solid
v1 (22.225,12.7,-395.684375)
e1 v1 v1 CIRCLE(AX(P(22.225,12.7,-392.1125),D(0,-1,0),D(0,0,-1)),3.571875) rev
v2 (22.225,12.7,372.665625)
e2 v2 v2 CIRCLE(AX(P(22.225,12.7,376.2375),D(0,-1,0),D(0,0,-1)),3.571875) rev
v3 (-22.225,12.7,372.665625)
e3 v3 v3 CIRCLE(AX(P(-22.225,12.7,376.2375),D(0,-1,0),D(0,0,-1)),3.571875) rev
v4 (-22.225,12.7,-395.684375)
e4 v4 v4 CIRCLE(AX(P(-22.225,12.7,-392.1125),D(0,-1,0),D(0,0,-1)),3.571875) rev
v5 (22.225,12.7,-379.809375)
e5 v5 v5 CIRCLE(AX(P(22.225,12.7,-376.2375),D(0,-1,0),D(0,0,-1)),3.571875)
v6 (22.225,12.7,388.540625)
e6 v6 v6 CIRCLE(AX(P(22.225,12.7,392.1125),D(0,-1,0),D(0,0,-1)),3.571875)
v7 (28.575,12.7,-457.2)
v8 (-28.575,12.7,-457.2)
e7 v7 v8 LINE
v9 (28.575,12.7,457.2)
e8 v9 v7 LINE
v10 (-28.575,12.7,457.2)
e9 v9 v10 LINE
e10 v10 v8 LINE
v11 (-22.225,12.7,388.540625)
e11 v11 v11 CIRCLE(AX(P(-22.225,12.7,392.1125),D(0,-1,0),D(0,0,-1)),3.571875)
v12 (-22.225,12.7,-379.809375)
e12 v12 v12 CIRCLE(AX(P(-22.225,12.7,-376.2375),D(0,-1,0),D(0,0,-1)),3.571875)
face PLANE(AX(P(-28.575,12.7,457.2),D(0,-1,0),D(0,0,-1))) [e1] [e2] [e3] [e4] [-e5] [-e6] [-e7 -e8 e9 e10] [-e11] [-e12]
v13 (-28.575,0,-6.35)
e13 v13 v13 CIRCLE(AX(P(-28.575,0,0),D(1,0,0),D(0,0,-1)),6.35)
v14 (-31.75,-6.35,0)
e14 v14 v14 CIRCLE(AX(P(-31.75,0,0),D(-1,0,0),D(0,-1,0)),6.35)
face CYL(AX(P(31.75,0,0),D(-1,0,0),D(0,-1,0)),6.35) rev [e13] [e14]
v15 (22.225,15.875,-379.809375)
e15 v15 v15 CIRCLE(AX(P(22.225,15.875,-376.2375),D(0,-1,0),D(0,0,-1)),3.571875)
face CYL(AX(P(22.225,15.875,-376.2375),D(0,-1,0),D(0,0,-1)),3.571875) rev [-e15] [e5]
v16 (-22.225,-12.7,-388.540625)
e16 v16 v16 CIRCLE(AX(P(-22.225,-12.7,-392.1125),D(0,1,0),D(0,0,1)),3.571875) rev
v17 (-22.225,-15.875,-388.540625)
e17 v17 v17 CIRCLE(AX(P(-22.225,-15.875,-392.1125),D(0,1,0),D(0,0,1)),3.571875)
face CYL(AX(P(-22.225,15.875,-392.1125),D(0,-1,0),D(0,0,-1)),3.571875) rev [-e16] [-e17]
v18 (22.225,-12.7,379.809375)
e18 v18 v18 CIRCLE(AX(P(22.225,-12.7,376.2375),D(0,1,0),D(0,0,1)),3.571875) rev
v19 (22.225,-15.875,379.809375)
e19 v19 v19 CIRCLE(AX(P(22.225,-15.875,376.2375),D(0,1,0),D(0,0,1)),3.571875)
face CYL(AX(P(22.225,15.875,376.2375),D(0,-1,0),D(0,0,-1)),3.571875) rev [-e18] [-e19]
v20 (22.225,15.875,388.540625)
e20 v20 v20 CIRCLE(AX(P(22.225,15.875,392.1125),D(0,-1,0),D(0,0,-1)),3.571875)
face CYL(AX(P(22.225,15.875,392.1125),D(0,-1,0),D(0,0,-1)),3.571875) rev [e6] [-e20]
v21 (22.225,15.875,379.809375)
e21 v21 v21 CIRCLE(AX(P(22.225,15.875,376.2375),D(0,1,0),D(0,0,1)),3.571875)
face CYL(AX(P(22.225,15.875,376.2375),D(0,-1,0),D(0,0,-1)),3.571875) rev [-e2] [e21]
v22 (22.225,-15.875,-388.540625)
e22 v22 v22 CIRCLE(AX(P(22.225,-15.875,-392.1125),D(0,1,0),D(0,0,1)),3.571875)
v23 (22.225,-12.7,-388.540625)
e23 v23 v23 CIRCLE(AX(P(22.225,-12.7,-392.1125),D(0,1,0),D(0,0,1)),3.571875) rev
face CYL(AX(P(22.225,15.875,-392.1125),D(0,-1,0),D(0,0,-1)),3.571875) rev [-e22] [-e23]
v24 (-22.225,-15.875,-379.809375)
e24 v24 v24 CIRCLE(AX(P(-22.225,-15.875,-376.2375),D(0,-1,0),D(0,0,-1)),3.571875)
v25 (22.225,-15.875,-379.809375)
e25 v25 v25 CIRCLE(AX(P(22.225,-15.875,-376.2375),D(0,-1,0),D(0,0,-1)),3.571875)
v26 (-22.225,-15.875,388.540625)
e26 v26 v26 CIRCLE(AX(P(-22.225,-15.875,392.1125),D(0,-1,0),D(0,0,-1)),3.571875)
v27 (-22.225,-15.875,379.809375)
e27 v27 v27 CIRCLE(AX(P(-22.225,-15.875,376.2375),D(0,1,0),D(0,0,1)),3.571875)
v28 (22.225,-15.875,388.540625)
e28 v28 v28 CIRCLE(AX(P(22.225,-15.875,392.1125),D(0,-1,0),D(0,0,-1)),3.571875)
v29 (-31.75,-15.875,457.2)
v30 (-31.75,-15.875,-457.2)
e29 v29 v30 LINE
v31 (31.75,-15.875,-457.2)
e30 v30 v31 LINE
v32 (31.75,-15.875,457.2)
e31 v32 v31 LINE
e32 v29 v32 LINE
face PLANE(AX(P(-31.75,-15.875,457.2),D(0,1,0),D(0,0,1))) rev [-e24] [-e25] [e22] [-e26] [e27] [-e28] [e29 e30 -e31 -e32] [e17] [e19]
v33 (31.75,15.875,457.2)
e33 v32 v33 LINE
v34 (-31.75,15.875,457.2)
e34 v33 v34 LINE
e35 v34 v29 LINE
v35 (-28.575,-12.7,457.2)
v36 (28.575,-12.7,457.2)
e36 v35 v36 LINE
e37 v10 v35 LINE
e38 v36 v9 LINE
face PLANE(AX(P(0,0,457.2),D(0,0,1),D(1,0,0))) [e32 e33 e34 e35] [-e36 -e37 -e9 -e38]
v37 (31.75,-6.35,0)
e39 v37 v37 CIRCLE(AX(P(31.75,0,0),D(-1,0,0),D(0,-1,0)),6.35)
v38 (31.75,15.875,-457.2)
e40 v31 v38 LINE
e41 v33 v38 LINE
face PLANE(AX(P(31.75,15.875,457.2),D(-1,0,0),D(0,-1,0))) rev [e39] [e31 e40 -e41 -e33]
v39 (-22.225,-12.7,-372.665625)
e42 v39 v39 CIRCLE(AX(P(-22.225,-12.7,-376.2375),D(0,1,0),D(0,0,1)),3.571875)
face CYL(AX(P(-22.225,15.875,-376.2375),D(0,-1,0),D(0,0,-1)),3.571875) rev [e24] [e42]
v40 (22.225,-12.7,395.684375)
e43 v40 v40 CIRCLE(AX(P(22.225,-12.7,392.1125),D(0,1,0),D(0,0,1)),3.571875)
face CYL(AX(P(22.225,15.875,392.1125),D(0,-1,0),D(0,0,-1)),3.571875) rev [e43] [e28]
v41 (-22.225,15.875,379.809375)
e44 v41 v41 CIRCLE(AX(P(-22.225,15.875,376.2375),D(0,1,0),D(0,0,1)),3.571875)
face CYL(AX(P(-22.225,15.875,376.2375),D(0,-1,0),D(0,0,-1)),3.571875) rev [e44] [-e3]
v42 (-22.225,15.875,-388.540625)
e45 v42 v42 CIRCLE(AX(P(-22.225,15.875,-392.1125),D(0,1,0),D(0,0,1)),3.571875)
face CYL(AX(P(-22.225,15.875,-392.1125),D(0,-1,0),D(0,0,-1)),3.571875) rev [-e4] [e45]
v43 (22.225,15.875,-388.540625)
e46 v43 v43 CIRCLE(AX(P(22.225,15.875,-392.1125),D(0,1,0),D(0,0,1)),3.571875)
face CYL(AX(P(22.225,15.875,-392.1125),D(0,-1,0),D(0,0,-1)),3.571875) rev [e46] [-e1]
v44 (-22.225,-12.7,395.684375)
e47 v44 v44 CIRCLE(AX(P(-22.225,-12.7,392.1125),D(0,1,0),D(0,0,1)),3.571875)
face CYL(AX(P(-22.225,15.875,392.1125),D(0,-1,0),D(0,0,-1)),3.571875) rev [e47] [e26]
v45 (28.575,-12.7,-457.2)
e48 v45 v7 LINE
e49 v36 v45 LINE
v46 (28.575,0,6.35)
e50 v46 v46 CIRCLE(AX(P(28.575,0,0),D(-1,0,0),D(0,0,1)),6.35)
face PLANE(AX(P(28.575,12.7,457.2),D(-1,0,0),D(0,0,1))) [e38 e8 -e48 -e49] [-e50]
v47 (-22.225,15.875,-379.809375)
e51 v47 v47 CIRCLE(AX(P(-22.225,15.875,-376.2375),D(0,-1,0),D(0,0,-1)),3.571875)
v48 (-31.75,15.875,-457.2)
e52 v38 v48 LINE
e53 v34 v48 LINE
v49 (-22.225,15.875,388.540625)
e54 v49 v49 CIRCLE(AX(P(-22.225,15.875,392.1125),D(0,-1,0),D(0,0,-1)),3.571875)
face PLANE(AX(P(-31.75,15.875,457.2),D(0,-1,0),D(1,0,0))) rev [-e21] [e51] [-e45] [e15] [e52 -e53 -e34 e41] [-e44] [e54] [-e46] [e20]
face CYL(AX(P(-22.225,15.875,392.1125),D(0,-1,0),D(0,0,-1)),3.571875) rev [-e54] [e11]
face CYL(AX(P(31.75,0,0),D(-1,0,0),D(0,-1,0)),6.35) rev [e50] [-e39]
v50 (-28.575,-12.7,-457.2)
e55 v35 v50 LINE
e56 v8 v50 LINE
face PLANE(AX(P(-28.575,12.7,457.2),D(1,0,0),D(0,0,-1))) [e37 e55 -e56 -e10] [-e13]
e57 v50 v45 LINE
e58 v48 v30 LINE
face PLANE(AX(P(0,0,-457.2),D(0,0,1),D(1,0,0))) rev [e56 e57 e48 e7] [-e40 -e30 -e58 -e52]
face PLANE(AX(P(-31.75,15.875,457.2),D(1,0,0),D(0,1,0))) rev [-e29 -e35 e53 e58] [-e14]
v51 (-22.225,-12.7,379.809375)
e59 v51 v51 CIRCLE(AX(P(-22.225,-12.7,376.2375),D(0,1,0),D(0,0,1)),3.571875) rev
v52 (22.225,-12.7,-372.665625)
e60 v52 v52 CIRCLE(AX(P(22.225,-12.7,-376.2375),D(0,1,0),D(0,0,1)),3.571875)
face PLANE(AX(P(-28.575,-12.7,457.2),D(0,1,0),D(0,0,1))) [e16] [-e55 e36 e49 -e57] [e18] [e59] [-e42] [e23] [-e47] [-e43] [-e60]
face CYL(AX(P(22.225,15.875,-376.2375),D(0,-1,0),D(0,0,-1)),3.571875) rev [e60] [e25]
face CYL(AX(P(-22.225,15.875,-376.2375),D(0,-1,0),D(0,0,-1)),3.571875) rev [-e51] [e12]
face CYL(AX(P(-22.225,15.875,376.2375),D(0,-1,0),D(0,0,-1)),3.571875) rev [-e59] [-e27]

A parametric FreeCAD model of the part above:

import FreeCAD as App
import Part
import Sketcher
from FreeCAD import Vector
Q = App.Units.Quantity


def add_polygon(sketch, points):
    """Adds a closed chain of lines whose ends are joined by coincident constraints."""
    first, n = sketch.GeometryCount, len(points)
    for a, b in zip(points, points[1:] + points[:1]):
        sketch.addGeometry(Part.LineSegment(App.Vector(*a, 0), App.Vector(*b, 0)), False)
    for i in range(n):
        sketch.addConstraint(Sketcher.Constraint("Coincident", first + i, 2, first + (i + 1) % n, 1))

doc = App.newDocument("Part")
body = doc.addObject("PartDesign::Body", "Body")

# Sketch on XY plane
sketch1 = body.newObject("Sketcher::SketchObject", "Sketch")
sketch1.AttachmentSupport = (doc.getObject("XY_Plane"), [""])
sketch1.MapMode = "FlatFace"
add_polygon(sketch1, [(-32, 16), (-32, -16), (32, -16), (32, 16)])  # lines 0-3
add_polygon(sketch1, [(29, -13), (-29, -13), (-29, 13), (29, 13)])  # lines 4-7
sketch1.addConstraint([
    Sketcher.Constraint("Vertical", 0),
    Sketcher.Constraint("Horizontal", 1),
    Sketcher.Constraint("Vertical", 2),
    Sketcher.Constraint("Horizontal", 3),
    Sketcher.Constraint("Horizontal", 4),
    Sketcher.Constraint("Vertical", 5),
    Sketcher.Constraint("Horizontal", 6),
    Sketcher.Constraint("Vertical", 7),
    Sketcher.Constraint("Symmetric", 0, 2, 2, 2, -1, 1),
    Sketcher.Constraint("Symmetric", 4, 2, 6, 2, -1, 1),
    Sketcher.Constraint("DistanceY", 5, 1, 5, 2, Q("1 in")),
    Sketcher.Constraint("DistanceX", 1, 1, 1, 2, Q("2.5 in")),
    Sketcher.Constraint("DistanceX", 4, 2, 4, 1, Q("2.25 in")),
    Sketcher.Constraint("DistanceY", 0, 2, 0, 1, Q("1.25 in")),
])
pad1 = body.newObject("PartDesign::Pad", "Pad")
pad1.Profile = sketch1
pad1.Type = "TwoLengths"
pad1.Length = Q("18 in")
pad1.Length2 = Q("18 in")

# Sketch on XZ plane
sketch2 = body.newObject("Sketcher::SketchObject", "Sketch001")
sketch2.AttachmentSupport = (doc.getObject("XZ_Plane"), [""])
sketch2.MapMode = "FlatFace"
sketch2.AttachmentOffset = App.Placement(Vector(0, 0, 0.625 * 25.4), App.Rotation())
sketch2.addGeometry([
    Part.Circle(Vector(-22.2, 392.1, 0), Vector(0, 0, 1), 3.6),  # 0
    Part.Circle(Vector(22.2, 392.1, 0), Vector(0, 0, 1), 3.6),  # 1
    Part.Circle(Vector(22.2, -392.1, 0), Vector(0, 0, 1), 3.6),  # 2
    Part.Circle(Vector(-22.2, -392.1, 0), Vector(0, 0, 1), 3.6),  # 3
    Part.Circle(Vector(22.2, 376.2, 0), Vector(0, 0, 1), 3.6),  # 4
    Part.Circle(Vector(-22.2, 376.2, 0), Vector(0, 0, 1), 3.6),  # 5
    Part.Circle(Vector(22.2, -376.2, 0), Vector(0, 0, 1), 3.6),  # 6
    Part.Circle(Vector(-22.2, -376.2, 0), Vector(0, 0, 1), 3.6),  # 7
], False)
sketch2.addConstraint([
    Sketcher.Constraint("Equal", 0, 1),
    Sketcher.Constraint("Equal", 1, 2),
    Sketcher.Constraint("Equal", 2, 3),
    Sketcher.Constraint("Equal", 3, 4),
    Sketcher.Constraint("Equal", 4, 5),
    Sketcher.Constraint("Equal", 5, 6),
    Sketcher.Constraint("Equal", 6, 7),
    Sketcher.Constraint("Symmetric", 0, 3, 2, 3, -1, 1),
    Sketcher.Constraint("Symmetric", 1, 3, 3, 3, -1, 1),
    Sketcher.Constraint("Symmetric", 5, 3, 6, 3, -1, 1),
    Sketcher.Constraint("Symmetric", 4, 3, 7, 3, -1, 1),
    Sketcher.Constraint("Symmetric", 0, 3, 1, 3, -2),
    Sketcher.Constraint("Symmetric", 4, 3, 5, 3, -2),
    Sketcher.Constraint("Vertical", 2, 3, 4, 3),
    Sketcher.Constraint("Diameter", 0, Q("0.28125 in")),
    Sketcher.Constraint("DistanceX", 0, 3, 1, 3, Q("1.75 in")),
    Sketcher.Constraint("DistanceY", 2, 3, 4, 3, Q("30.25 in")),
    Sketcher.Constraint("DistanceY", -1, 1, 0, 3, Q("15.4375 in")),
])
pocket1 = body.newObject("PartDesign::Pocket", "Pocket")
pocket1.Profile = sketch2
pocket1.Type = "ThroughAll"

# Sketch on YZ plane
sketch3 = body.newObject("Sketcher::SketchObject", "Sketch002")
sketch3.AttachmentSupport = (doc.getObject("YZ_Plane"), [""])
sketch3.MapMode = "FlatFace"
sketch3.AttachmentOffset = App.Placement(Vector(0, 0, -1.25 * 25.4), App.Rotation())
sketch3.addGeometry(Part.Circle(Vector(0, 0, 0), Vector(0, 0, 1), 6), False)
sketch3.addConstraint([
    Sketcher.Constraint("Coincident", 0, 3, -1, 1),
    Sketcher.Constraint("Diameter", 0, Q("0.5 in")),
])
pocket2 = body.newObject("PartDesign::Pocket", "Pocket001")
pocket2.Profile = sketch3
pocket2.Type = "ThroughAll"
pocket2.Reversed = True

doc.recompute()
